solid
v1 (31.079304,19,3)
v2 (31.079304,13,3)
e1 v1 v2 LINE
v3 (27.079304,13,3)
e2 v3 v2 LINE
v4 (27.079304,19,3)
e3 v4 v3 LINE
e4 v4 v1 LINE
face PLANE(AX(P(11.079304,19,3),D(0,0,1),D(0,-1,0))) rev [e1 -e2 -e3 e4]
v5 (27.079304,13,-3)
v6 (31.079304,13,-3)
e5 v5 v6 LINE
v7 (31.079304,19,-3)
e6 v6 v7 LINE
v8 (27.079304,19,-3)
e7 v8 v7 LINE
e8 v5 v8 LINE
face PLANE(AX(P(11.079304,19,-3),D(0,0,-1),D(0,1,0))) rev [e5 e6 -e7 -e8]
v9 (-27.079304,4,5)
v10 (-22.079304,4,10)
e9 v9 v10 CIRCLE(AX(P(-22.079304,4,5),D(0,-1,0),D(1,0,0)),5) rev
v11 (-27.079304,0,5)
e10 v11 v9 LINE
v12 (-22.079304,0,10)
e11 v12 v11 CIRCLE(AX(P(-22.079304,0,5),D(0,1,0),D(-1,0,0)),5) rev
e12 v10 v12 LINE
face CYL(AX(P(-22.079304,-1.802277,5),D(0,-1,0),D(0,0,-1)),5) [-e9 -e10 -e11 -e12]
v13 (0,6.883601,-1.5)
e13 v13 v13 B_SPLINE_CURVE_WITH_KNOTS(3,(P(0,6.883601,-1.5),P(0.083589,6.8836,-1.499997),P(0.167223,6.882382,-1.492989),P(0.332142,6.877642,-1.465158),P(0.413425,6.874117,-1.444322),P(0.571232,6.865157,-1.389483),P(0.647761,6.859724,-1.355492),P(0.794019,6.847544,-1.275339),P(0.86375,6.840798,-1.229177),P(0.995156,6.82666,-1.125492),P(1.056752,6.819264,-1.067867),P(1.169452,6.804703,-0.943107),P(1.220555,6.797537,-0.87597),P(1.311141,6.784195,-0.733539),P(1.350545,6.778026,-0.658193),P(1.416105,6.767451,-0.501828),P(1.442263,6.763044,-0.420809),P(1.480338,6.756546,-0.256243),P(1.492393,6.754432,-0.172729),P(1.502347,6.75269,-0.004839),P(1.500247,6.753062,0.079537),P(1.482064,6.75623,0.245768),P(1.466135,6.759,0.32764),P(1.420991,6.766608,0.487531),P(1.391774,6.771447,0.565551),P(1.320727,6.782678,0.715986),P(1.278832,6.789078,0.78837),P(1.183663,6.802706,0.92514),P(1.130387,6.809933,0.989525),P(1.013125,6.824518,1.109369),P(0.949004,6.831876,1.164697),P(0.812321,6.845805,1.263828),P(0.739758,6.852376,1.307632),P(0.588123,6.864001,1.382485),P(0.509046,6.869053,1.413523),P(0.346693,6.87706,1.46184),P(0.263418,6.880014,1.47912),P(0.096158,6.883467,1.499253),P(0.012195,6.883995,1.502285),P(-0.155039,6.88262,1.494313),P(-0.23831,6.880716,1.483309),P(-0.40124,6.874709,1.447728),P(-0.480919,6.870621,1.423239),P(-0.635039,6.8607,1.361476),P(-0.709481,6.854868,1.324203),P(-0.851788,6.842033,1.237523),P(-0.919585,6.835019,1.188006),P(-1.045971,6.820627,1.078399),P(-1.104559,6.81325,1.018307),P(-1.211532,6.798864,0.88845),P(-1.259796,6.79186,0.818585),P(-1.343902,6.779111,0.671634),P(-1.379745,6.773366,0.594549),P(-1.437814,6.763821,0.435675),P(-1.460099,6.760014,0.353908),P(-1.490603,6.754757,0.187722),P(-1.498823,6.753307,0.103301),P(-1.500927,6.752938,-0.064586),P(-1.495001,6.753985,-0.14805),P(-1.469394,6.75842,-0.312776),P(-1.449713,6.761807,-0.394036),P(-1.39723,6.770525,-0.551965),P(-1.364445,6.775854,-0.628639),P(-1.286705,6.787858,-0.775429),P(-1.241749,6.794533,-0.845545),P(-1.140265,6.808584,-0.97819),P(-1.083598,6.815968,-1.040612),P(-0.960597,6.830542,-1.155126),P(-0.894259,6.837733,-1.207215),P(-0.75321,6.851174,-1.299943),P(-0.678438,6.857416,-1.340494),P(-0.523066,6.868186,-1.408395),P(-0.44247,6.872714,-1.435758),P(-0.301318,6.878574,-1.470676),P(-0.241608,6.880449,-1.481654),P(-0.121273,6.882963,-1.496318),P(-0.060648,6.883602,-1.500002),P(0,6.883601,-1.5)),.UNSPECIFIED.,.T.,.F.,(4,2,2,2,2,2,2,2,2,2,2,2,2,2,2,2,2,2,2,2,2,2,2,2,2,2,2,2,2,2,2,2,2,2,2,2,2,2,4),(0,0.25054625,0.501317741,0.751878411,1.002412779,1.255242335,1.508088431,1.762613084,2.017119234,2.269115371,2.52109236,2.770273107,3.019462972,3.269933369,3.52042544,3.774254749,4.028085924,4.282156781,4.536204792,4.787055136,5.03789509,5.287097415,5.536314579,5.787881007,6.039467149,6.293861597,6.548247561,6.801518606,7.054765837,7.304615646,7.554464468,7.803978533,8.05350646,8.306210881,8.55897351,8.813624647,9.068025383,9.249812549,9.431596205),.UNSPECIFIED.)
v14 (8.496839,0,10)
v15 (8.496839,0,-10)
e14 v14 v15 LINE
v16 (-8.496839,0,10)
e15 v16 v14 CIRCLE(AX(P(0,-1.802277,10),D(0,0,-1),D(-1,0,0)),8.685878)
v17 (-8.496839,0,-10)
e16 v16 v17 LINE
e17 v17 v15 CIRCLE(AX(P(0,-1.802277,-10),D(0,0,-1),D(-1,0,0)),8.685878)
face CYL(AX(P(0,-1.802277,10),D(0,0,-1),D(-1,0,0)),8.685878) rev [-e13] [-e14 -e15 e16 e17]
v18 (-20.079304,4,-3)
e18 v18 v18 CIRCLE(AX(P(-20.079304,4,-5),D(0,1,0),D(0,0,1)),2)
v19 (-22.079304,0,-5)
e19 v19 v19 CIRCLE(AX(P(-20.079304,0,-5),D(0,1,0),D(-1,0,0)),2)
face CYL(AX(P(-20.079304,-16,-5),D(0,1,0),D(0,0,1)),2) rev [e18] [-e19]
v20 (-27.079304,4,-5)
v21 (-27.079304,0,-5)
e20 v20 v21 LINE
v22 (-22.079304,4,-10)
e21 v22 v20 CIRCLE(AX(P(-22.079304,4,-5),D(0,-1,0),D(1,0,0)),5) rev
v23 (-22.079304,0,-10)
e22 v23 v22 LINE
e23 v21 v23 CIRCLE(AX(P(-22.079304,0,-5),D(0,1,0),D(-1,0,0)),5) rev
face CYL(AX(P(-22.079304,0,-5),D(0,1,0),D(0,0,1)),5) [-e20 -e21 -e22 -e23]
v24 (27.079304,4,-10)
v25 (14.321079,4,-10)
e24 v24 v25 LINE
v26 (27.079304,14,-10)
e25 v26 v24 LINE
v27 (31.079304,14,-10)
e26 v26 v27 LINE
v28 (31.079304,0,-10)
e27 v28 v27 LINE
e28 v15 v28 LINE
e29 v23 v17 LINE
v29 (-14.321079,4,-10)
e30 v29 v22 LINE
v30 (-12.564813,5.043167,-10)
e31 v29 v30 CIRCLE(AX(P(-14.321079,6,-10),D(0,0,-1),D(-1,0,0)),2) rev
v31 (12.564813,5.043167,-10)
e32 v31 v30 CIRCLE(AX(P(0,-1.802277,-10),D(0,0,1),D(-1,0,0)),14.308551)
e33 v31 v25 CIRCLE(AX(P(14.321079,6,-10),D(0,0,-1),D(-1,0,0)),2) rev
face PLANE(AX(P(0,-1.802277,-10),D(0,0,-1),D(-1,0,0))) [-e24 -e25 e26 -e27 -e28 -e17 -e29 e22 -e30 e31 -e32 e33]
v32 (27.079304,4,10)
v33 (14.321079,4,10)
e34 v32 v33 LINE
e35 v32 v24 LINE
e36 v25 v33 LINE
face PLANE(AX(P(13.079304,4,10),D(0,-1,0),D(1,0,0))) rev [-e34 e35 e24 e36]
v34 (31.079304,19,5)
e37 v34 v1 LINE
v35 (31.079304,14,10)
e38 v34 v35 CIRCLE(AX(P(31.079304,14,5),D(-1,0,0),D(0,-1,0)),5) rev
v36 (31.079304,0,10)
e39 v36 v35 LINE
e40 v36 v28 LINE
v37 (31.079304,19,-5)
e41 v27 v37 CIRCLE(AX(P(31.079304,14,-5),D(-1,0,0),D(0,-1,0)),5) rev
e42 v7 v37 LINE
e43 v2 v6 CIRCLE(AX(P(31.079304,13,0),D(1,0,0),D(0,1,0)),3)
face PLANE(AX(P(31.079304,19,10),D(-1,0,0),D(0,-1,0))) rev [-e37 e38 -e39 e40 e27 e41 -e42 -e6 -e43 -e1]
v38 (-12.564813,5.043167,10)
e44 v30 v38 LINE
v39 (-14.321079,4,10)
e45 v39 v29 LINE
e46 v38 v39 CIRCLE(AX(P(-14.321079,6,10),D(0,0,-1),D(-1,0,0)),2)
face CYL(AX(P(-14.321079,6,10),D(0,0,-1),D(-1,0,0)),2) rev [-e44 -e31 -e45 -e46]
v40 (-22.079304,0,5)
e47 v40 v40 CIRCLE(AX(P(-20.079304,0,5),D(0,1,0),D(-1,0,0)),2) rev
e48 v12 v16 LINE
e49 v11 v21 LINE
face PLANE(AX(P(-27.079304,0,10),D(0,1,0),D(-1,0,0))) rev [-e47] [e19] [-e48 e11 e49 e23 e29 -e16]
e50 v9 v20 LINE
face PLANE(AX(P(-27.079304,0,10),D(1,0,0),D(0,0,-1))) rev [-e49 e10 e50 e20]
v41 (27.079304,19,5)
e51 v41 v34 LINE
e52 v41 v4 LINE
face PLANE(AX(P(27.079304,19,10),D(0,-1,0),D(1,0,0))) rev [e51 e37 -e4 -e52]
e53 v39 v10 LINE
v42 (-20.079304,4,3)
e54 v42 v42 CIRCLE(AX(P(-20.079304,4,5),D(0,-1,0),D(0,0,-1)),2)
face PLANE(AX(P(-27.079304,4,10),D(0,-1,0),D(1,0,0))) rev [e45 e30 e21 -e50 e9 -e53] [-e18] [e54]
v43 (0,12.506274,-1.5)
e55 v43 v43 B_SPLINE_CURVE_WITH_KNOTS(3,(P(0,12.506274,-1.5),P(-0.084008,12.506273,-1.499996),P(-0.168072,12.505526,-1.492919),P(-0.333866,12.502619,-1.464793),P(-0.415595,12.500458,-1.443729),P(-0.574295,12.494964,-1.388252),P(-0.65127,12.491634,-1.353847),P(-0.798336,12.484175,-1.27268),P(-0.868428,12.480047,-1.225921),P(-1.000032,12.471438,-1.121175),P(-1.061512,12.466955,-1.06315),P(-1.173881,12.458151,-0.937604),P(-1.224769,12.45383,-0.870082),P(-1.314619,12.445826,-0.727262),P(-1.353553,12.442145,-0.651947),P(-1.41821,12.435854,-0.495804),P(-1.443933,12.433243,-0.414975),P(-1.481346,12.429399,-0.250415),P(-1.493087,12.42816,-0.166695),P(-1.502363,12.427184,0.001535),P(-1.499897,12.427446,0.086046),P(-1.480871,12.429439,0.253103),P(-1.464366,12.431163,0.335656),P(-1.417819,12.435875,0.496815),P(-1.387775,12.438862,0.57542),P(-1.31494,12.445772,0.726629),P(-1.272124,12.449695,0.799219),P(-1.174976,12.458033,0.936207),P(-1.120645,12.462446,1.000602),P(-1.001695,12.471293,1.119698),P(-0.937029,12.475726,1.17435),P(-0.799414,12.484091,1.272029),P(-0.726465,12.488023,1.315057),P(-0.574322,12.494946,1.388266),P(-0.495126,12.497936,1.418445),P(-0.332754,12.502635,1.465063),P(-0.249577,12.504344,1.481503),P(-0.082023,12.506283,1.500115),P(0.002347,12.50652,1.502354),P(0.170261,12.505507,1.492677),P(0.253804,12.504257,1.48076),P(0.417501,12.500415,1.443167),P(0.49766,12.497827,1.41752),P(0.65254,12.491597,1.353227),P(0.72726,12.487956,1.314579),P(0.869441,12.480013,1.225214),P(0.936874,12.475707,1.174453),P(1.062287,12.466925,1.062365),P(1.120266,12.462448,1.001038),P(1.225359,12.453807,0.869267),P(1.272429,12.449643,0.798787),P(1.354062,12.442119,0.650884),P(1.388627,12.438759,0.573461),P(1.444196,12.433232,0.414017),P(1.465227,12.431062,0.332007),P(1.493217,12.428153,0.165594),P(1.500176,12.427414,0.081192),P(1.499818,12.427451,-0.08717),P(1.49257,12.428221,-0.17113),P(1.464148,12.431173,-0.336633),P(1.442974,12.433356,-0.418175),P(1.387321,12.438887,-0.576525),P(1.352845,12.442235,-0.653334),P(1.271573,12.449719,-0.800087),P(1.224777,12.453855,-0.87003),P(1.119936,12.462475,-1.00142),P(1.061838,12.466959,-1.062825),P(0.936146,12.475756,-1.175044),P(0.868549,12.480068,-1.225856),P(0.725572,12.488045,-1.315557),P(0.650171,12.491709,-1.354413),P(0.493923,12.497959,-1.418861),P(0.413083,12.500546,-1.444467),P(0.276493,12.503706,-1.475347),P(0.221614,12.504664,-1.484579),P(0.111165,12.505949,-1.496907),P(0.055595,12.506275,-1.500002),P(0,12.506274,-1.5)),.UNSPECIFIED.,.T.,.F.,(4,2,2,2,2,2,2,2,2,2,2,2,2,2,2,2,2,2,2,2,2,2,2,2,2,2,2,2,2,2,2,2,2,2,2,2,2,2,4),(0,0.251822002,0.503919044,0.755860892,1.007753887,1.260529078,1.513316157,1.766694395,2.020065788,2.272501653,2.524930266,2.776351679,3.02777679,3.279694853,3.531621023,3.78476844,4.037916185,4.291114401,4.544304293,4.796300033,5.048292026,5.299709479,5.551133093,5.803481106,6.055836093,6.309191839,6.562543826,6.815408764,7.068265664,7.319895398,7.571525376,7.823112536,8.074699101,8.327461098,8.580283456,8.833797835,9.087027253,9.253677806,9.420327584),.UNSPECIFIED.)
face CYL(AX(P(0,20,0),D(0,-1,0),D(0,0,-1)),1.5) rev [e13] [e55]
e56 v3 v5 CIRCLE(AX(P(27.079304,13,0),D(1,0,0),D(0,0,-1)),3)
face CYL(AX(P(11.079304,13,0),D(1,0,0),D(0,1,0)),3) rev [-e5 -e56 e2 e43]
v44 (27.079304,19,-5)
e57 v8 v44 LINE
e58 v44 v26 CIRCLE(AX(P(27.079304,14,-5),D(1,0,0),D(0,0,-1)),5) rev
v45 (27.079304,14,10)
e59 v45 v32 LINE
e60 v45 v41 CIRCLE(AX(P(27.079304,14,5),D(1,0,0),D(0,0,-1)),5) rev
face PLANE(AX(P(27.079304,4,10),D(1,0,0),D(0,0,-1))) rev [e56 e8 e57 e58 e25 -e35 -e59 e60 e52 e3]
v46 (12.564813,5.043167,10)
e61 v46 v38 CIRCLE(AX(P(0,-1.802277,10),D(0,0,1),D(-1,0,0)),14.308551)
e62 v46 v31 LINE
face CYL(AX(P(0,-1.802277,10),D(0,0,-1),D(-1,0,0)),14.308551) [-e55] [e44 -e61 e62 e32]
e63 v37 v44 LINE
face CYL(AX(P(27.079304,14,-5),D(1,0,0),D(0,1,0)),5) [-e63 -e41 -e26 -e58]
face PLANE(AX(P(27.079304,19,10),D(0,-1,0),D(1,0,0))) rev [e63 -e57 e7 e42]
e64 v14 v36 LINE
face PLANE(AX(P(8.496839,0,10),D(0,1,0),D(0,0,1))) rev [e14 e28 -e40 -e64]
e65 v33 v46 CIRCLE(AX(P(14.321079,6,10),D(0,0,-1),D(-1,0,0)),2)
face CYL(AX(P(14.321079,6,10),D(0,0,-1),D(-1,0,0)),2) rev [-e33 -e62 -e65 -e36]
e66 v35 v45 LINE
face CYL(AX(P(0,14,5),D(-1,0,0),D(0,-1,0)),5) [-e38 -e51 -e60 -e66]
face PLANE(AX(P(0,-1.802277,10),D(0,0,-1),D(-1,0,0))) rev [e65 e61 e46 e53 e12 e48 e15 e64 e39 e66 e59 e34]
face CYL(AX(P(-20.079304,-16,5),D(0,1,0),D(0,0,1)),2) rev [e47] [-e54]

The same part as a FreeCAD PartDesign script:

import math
import FreeCAD as App
import Part
import Sketcher


def edges_at(feature, points):
    """Names of the edges that pass closest to the given points."""
    edges = feature.Shape.Edges
    near = lambda p: min(range(len(edges)), key=lambda i: edges[i].distToShape(Part.Vertex(*p))[0])
    return sorted({f"Edge{near(p) + 1}" for p in points})

doc = App.newDocument("Part")
body = doc.addObject("PartDesign::Body", "Body")

sketch1 = body.newObject("Sketcher::SketchObject", "Sketch")
sketch1.AttachmentSupport = (doc.getObject("XY_Plane"), [""])
sketch1.MapMode = "FlatFace"
sketch1.addGeometry(Part.LineSegment(App.Vector(-27.1, 4, 0), App.Vector(-27.1, 0, 0)), False)
sketch1.addGeometry(Part.LineSegment(App.Vector(-27.1, 0, 0), App.Vector(-8.5, 0, 0)), False)
sketch1.addGeometry(Part.ArcOfCircle(Part.Circle(App.Vector(0, -1.8, 0), App.Vector(0, 0, 1), 8.7), math.radians(12), math.radians(168)), False)
sketch1.addGeometry(Part.LineSegment(App.Vector(8.5, 0, 0), App.Vector(31.1, 0, 0)), False)
sketch1.addGeometry(Part.LineSegment(App.Vector(31.1, 0, 0), App.Vector(31.1, 19, 0)), False)
sketch1.addGeometry(Part.LineSegment(App.Vector(31.1, 19, 0), App.Vector(27.1, 19, 0)), False)
sketch1.addGeometry(Part.LineSegment(App.Vector(27.1, 19, 0), App.Vector(27.1, 4, 0)), False)
sketch1.addGeometry(Part.LineSegment(App.Vector(27.1, 4, 0), App.Vector(13.1, 4, 0)), False)
sketch1.addGeometry(Part.ArcOfCircle(Part.Circle(App.Vector(0, -1.8, 0), App.Vector(0, 0, 1), 14.3), math.radians(24), math.radians(156)), False)
sketch1.addGeometry(Part.LineSegment(App.Vector(-13.1, 4, 0), App.Vector(-27.1, 4, 0)), False)
sketch1.addConstraint(Sketcher.Constraint("Coincident", 0, 2, 1, 1))
sketch1.addConstraint(Sketcher.Constraint("Coincident", 1, 2, 2, 2))
sketch1.addConstraint(Sketcher.Constraint("Coincident", 2, 1, 3, 1))
sketch1.addConstraint(Sketcher.Constraint("Coincident", 3, 2, 4, 1))
sketch1.addConstraint(Sketcher.Constraint("Coincident", 4, 2, 5, 1))
sketch1.addConstraint(Sketcher.Constraint("Coincident", 5, 2, 6, 1))
sketch1.addConstraint(Sketcher.Constraint("Coincident", 6, 2, 7, 1))
sketch1.addConstraint(Sketcher.Constraint("Coincident", 7, 2, 8, 1))
sketch1.addConstraint(Sketcher.Constraint("Coincident", 8, 2, 9, 1))
sketch1.addConstraint(Sketcher.Constraint("Coincident", 9, 2, 0, 1))
sketch1.addConstraint(Sketcher.Constraint("Vertical", 0))
sketch1.addConstraint(Sketcher.Constraint("Horizontal", 1))
sketch1.addConstraint(Sketcher.Constraint("Horizontal", 3))
sketch1.addConstraint(Sketcher.Constraint("Vertical", 4))
sketch1.addConstraint(Sketcher.Constraint("Horizontal", 5))
sketch1.addConstraint(Sketcher.Constraint("Vertical", 6))
sketch1.addConstraint(Sketcher.Constraint("Horizontal", 7))
sketch1.addConstraint(Sketcher.Constraint("Horizontal", 9))
sketch1.addConstraint(Sketcher.Constraint("Coincident", 8, 3, 2, 3))
sketch1.addConstraint(Sketcher.Constraint("Symmetric", 1, 2, 2, 1, -1, 1))
sketch1.addConstraint(Sketcher.Constraint("Symmetric", 7, 2, 8, 2, -2))
sketch1.addConstraint(Sketcher.Constraint("Equal", 7, 9))
sketch1.addConstraint(Sketcher.Constraint("Equal", 5, 0))
sketch1.addConstraint(Sketcher.Constraint("DistanceX", 5, 2, 5, 1, 4.0))
sketch1.addConstraint(Sketcher.Constraint("DistanceX", 7, 2, 7, 1, 14.0))
sketch1.addConstraint(Sketcher.Constraint("DistanceY", 4, 1, 4, 2, 19.0))
sketch1.addConstraint(Sketcher.Constraint("Radius", 8, 14.308551))
sketch1.addConstraint(Sketcher.Constraint("Radius", 2, 8.685878))
sketch1.addConstraint(Sketcher.Constraint("DistanceX", 1, 1, 1, 2, 18.582465))
pad1 = body.newObject("PartDesign::Pad", "Pad")
pad1.Profile = sketch1
pad1.Length = 20
pad1.Midplane = True
doc.recompute()

fillet = body.newObject("PartDesign::Fillet", "Fillet")
fillet.Base = (pad1, edges_at(pad1, [(29.079, 19, -10), (29.079, 19, 10)]))
fillet.Radius = 5
doc.recompute()

fillet2 = body.newObject("PartDesign::Fillet", "Fillet001")
fillet2.Base = (fillet, edges_at(fillet, [(-27.079, 2, -10), (-27.079, 2, 10)]))
fillet2.Radius = 5
doc.recompute()

fillet3 = body.newObject("PartDesign::Fillet", "Fillet002")
fillet3.Base = (fillet2, edges_at(fillet2, [(-13.079, 4, 0), (13.079, 4, 0)]))
fillet3.Radius = 2

sketch2 = body.newObject("Sketcher::SketchObject", "Sketch001")
sketch2.AttachmentSupport = (doc.getObject("XZ_Plane"), [""])
sketch2.MapMode = "FlatFace"
sketch2.AttachmentOffset = App.Placement(App.Vector(0, 0, -4), App.Rotation())
sketch2.addGeometry(Part.Circle(App.Vector(-20.1, -5, 0), App.Vector(0, 0, 1), 2), False)
sketch2.addConstraint(Sketcher.Constraint("Diameter", 0, 4.0))
sketch2.addConstraint(Sketcher.Constraint("DistanceY", 0, 3, -1, 1, 5.0))
sketch2.addConstraint(Sketcher.Constraint("DistanceX", 0, 3, -1, 1, 20.079304))
pocket1 = body.newObject("PartDesign::Pocket", "Pocket")
pocket1.Profile = sketch2
pocket1.Length = 20
pocket1.Reversed = True
doc.recompute()

mirrored = body.newObject("PartDesign::Mirrored", "Mirrored")
mirrored.Originals = [pocket1]
mirrored.MirrorPlane = (doc.getObject("XY_Plane"), [""])
body.Tip = mirrored

sketch3 = body.newObject("Sketcher::SketchObject", "Sketch002")
sketch3.AttachmentSupport = (doc.getObject("XZ_Plane"), [""])
sketch3.MapMode = "FlatFace"
sketch3.addGeometry(Part.Circle(App.Vector(0, 0, 0), App.Vector(0, 0, 1), 1.5), False)
sketch3.addConstraint(Sketcher.Constraint("Coincident", 0, 3, -1, 1))
sketch3.addConstraint(Sketcher.Constraint("Diameter", 0, 3.0))
pocket2 = body.newObject("PartDesign::Pocket", "Pocket001")
pocket2.Profile = sketch3
pocket2.Length = 20

sketch4 = body.newObject("Sketcher::SketchObject", "Sketch003")
sketch4.AttachmentSupport = (doc.getObject("YZ_Plane"), [""])
sketch4.MapMode = "FlatFace"
sketch4.AttachmentOffset = App.Placement(App.Vector(0, 0, 31.079304), App.Rotation())
sketch4.addGeometry(Part.LineSegment(App.Vector(19, 3, 0), App.Vector(13, 3, 0)), False)
sketch4.addGeometry(Part.ArcOfCircle(Part.Circle(App.Vector(13, 0, 0), App.Vector(0, 0, 1), 3), math.radians(90), math.radians(270)), False)
sketch4.addGeometry(Part.LineSegment(App.Vector(13, -3, 0), App.Vector(19, -3, 0)), False)
sketch4.addGeometry(Part.LineSegment(App.Vector(19, -3, 0), App.Vector(19, 3, 0)), False)
sketch4.addConstraint(Sketcher.Constraint("Tangent", 0, 2, 1, 1))
sketch4.addConstraint(Sketcher.Constraint("Tangent", 1, 2, 2, 1))
sketch4.addConstraint(Sketcher.Constraint("Coincident", 2, 2, 3, 1))
sketch4.addConstraint(Sketcher.Constraint("Coincident", 3, 2, 0, 1))
sketch4.addConstraint(Sketcher.Constraint("Horizontal", 0))
sketch4.addConstraint(Sketcher.Constraint("Horizontal", 2))
sketch4.addConstraint(Sketcher.Constraint("Vertical", 3))
sketch4.addConstraint(Sketcher.Constraint("PointOnObject", 1, 3, -1))
sketch4.addConstraint(Sketcher.Constraint("Equal", 2, 3))
sketch4.addConstraint(Sketcher.Constraint("Radius", 1, 3.0))
sketch4.addConstraint(Sketcher.Constraint("DistanceX", -1, 1, 1, 3, 13.0))
pocket3 = body.newObject("PartDesign::Pocket", "Pocket002")
pocket3.Profile = sketch4
pocket3.Length = 20

doc.recompute()
